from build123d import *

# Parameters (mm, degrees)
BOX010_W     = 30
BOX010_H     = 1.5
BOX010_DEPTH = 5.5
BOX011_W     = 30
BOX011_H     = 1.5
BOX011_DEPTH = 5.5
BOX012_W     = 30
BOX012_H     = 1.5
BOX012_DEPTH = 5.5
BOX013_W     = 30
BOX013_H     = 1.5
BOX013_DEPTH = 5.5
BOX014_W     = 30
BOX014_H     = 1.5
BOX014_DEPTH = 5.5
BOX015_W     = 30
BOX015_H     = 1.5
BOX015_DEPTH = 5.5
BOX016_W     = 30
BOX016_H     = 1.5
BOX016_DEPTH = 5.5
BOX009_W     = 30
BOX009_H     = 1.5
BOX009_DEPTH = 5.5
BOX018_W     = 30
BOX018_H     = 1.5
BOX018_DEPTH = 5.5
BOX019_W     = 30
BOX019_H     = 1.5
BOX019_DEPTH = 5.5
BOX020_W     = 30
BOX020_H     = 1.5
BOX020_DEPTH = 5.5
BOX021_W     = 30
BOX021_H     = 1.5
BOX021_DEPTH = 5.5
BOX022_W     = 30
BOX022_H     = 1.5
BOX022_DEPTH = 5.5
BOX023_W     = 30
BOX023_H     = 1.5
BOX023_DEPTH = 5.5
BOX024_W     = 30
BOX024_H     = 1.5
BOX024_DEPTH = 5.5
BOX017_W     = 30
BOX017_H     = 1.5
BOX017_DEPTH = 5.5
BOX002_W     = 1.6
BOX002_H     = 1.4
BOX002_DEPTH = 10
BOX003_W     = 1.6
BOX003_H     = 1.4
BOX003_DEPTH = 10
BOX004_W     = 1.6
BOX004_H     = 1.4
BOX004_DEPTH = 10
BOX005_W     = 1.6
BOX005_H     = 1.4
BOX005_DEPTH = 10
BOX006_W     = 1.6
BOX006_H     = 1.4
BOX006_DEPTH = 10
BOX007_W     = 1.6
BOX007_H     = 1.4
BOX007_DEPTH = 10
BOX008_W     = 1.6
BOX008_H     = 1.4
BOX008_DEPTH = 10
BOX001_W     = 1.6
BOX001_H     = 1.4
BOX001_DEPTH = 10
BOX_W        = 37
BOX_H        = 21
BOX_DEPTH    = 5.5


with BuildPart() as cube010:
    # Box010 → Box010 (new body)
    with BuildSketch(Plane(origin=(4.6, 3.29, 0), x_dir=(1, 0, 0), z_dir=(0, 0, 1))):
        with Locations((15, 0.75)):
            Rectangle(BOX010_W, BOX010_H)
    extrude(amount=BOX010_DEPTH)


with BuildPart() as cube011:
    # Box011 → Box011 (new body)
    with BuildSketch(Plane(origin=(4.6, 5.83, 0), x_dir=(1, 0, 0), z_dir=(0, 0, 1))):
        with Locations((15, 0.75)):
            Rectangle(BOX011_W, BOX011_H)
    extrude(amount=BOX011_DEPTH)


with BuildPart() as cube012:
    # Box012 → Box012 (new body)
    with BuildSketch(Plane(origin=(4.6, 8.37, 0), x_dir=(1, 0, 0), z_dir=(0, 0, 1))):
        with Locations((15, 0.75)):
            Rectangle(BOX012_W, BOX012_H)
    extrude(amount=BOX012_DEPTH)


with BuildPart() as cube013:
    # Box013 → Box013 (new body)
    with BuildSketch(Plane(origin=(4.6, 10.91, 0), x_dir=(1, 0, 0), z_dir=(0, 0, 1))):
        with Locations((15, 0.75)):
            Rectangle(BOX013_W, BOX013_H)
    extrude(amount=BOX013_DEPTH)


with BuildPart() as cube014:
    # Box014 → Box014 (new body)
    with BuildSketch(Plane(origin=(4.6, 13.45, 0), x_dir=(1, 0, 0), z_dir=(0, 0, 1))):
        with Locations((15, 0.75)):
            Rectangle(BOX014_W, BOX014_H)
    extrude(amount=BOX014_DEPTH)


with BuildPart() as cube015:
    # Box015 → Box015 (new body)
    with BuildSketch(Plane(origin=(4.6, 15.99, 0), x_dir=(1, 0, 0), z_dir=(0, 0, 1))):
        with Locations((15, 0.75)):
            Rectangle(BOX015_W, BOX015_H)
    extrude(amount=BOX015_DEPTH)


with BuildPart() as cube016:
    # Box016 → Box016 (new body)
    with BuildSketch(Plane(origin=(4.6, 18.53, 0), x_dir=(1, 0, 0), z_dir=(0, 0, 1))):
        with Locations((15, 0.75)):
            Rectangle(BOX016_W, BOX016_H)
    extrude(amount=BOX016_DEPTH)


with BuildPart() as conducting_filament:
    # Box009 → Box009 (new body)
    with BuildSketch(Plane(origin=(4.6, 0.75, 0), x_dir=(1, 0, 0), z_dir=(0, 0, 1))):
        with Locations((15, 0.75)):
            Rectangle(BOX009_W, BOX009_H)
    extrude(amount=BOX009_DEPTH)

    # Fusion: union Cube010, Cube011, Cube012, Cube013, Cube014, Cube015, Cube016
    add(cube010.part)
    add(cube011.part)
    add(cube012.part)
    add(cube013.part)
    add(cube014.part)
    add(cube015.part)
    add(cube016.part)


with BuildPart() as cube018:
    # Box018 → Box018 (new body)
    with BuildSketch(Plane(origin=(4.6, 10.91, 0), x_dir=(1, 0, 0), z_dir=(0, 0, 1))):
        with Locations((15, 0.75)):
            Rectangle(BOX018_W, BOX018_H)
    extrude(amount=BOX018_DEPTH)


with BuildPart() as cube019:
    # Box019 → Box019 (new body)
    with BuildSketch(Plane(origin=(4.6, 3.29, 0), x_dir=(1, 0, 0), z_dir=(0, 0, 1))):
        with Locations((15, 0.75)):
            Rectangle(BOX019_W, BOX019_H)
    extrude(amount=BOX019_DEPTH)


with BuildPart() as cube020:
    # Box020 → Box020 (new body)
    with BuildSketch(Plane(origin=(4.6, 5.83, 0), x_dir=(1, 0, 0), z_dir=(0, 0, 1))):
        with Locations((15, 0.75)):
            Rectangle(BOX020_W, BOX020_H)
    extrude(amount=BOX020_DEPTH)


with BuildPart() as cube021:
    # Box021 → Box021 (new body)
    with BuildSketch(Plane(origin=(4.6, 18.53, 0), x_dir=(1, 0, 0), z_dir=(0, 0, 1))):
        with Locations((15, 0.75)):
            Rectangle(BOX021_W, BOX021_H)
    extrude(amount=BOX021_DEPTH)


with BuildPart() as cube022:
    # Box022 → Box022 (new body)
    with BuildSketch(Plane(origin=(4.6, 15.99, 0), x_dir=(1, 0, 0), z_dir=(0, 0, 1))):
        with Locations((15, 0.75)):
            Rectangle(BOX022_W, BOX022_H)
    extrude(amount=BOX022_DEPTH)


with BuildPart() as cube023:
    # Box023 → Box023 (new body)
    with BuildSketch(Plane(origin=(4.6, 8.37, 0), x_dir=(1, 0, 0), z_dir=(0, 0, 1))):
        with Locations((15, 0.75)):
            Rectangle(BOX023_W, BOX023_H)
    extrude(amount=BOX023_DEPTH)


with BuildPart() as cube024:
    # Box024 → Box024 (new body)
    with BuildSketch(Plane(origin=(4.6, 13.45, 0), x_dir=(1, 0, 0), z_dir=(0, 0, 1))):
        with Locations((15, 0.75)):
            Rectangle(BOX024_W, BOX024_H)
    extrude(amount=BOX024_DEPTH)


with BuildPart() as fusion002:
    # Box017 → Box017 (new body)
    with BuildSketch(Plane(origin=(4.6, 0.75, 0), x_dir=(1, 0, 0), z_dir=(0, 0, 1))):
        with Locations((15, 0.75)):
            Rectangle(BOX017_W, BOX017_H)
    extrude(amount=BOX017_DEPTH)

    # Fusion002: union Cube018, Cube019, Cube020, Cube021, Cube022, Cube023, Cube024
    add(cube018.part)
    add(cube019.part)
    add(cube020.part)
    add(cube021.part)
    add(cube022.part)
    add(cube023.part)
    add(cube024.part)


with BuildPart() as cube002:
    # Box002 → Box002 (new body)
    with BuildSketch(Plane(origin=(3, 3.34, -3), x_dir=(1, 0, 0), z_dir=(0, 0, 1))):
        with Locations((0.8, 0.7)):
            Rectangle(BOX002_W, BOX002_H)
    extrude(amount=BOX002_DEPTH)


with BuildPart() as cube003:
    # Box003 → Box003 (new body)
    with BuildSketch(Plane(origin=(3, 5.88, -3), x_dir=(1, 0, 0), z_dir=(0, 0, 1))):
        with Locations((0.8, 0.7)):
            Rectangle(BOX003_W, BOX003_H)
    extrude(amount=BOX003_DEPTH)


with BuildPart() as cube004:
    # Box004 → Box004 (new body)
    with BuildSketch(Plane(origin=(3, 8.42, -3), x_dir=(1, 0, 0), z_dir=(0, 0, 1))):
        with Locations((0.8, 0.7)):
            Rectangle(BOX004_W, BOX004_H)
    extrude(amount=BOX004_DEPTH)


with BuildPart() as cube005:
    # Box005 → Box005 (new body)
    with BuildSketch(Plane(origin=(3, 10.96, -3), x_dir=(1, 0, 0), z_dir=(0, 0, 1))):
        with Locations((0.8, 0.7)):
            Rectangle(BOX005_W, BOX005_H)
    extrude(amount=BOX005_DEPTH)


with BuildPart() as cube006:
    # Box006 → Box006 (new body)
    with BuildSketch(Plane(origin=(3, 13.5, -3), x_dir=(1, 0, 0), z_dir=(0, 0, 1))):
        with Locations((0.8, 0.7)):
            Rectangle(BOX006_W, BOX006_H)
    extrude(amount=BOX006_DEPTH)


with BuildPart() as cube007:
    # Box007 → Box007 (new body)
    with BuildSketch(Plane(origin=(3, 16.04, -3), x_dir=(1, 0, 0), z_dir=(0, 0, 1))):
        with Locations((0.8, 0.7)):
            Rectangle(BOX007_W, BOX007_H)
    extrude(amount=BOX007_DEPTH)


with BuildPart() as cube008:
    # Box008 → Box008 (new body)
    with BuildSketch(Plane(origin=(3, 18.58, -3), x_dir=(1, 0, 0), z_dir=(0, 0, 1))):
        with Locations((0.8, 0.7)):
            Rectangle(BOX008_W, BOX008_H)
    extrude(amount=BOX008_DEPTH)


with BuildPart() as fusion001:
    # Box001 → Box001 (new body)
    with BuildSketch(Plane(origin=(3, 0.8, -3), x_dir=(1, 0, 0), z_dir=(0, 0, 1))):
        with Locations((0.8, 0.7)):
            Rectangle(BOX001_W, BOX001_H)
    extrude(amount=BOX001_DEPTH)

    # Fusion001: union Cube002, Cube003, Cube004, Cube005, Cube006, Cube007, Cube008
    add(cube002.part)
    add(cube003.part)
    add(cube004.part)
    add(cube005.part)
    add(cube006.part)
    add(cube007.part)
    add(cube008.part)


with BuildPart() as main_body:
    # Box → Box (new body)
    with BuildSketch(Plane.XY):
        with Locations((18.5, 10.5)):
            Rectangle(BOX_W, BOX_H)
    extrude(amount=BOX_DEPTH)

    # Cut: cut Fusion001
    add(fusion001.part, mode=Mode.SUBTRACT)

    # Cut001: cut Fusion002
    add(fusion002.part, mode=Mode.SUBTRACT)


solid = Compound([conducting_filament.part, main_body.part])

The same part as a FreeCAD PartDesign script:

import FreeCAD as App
import Part
import Sketcher

V = App.Vector
Q = App.Units.Quantity

doc = App.newDocument("Part")
body = doc.addObject("PartDesign::Body", "Body")

# Sketch on XY plane
sketch1 = doc.addObject("Sketcher::SketchObject", "Sketch")
body.addObject(sketch1)
sketch1.AttachmentSupport = (doc.XY_Plane, [""])
sketch1.MapMode = "FlatFace"
sketch1.addGeometry(Part.LineSegment(V(4.6, 4.79, 0), V(4.6, 3.29, 0)), False)
sketch1.addGeometry(Part.LineSegment(V(4.6, 3.29, 0), V(34.6, 3.29, 0)), False)
sketch1.addGeometry(Part.LineSegment(V(34.6, 3.29, 0), V(34.6, 4.79, 0)), False)
sketch1.addGeometry(Part.LineSegment(V(34.6, 4.79, 0), V(4.6, 4.79, 0)), False)
sketch1.addConstraint(Sketcher.Constraint("Coincident", 0, 2, 1, 1))
sketch1.addConstraint(Sketcher.Constraint("Coincident", 1, 2, 2, 1))
sketch1.addConstraint(Sketcher.Constraint("Coincident", 2, 2, 3, 1))
sketch1.addConstraint(Sketcher.Constraint("Coincident", 3, 2, 0, 1))
sketch1.addConstraint(Sketcher.Constraint("Vertical", 0))
sketch1.addConstraint(Sketcher.Constraint("Horizontal", 1))
sketch1.addConstraint(Sketcher.Constraint("Vertical", 2))
sketch1.addConstraint(Sketcher.Constraint("Horizontal", 3))
sketch1.addConstraint(Sketcher.Constraint("DistanceX", 1, 1, 1, 2, Q("30 mm")))
sketch1.addConstraint(Sketcher.Constraint("DistanceY", 0, 2, 0, 1, Q("1.5 mm")))
sketch1.addConstraint(Sketcher.Constraint("DistanceX", -1, 1, 0, 2, Q("4.6 mm")))
sketch1.addConstraint(Sketcher.Constraint("DistanceY", -1, 1, 0, 2, Q("3.29 mm")))
pad1 = doc.addObject("PartDesign::Pad", "Pad")
body.addObject(pad1)
pad1.Profile = sketch1
pad1.Length = 5.5
body2 = doc.addObject("PartDesign::Body", "Body001")

# Sketch on XY plane
sketch2 = doc.addObject("Sketcher::SketchObject", "Sketch001")
body2.addObject(sketch2)
sketch2.AttachmentSupport = (doc.getObject("XY_Plane001"), [""])
sketch2.MapMode = "FlatFace"
sketch2.addGeometry(Part.LineSegment(V(4.6, 7.33, 0), V(4.6, 5.83, 0)), False)
sketch2.addGeometry(Part.LineSegment(V(4.6, 5.83, 0), V(34.6, 5.83, 0)), False)
sketch2.addGeometry(Part.LineSegment(V(34.6, 5.83, 0), V(34.6, 7.33, 0)), False)
sketch2.addGeometry(Part.LineSegment(V(34.6, 7.33, 0), V(4.6, 7.33, 0)), False)
sketch2.addConstraint(Sketcher.Constraint("Coincident", 0, 2, 1, 1))
sketch2.addConstraint(Sketcher.Constraint("Coincident", 1, 2, 2, 1))
sketch2.addConstraint(Sketcher.Constraint("Coincident", 2, 2, 3, 1))
sketch2.addConstraint(Sketcher.Constraint("Coincident", 3, 2, 0, 1))
sketch2.addConstraint(Sketcher.Constraint("Vertical", 0))
sketch2.addConstraint(Sketcher.Constraint("Horizontal", 1))
sketch2.addConstraint(Sketcher.Constraint("Vertical", 2))
sketch2.addConstraint(Sketcher.Constraint("Horizontal", 3))
sketch2.addConstraint(Sketcher.Constraint("DistanceX", 1, 1, 1, 2, Q("30 mm")))
sketch2.addConstraint(Sketcher.Constraint("DistanceY", 0, 2, 0, 1, Q("1.5 mm")))
sketch2.addConstraint(Sketcher.Constraint("DistanceX", -1, 1, 0, 2, Q("4.6 mm")))
sketch2.addConstraint(Sketcher.Constraint("DistanceY", -1, 1, 0, 2, Q("5.83 mm")))
pad2 = doc.addObject("PartDesign::Pad", "Pad001")
body2.addObject(pad2)
pad2.Profile = sketch2
pad2.Length = 5.5
body3 = doc.addObject("PartDesign::Body", "Body002")

# Sketch on XY plane
sketch3 = doc.addObject("Sketcher::SketchObject", "Sketch002")
body3.addObject(sketch3)
sketch3.AttachmentSupport = (doc.getObject("XY_Plane002"), [""])
sketch3.MapMode = "FlatFace"
sketch3.addGeometry(Part.LineSegment(V(4.6, 9.87, 0), V(4.6, 8.37, 0)), False)
sketch3.addGeometry(Part.LineSegment(V(4.6, 8.37, 0), V(34.6, 8.37, 0)), False)
sketch3.addGeometry(Part.LineSegment(V(34.6, 8.37, 0), V(34.6, 9.87, 0)), False)
sketch3.addGeometry(Part.LineSegment(V(34.6, 9.87, 0), V(4.6, 9.87, 0)), False)
sketch3.addConstraint(Sketcher.Constraint("Coincident", 0, 2, 1, 1))
sketch3.addConstraint(Sketcher.Constraint("Coincident", 1, 2, 2, 1))
sketch3.addConstraint(Sketcher.Constraint("Coincident", 2, 2, 3, 1))
sketch3.addConstraint(Sketcher.Constraint("Coincident", 3, 2, 0, 1))
sketch3.addConstraint(Sketcher.Constraint("Vertical", 0))
sketch3.addConstraint(Sketcher.Constraint("Horizontal", 1))
sketch3.addConstraint(Sketcher.Constraint("Vertical", 2))
sketch3.addConstraint(Sketcher.Constraint("Horizontal", 3))
sketch3.addConstraint(Sketcher.Constraint("DistanceX", 1, 1, 1, 2, Q("30 mm")))
sketch3.addConstraint(Sketcher.Constraint("DistanceY", 0, 2, 0, 1, Q("1.5 mm")))
sketch3.addConstraint(Sketcher.Constraint("DistanceX", -1, 1, 0, 2, Q("4.6 mm")))
sketch3.addConstraint(Sketcher.Constraint("DistanceY", -1, 1, 0, 2, Q("8.37 mm")))
pad3 = doc.addObject("PartDesign::Pad", "Pad002")
body3.addObject(pad3)
pad3.Profile = sketch3
pad3.Length = 5.5
body4 = doc.addObject("PartDesign::Body", "Body003")

# Sketch on XY plane
sketch4 = doc.addObject("Sketcher::SketchObject", "Sketch003")
body4.addObject(sketch4)
sketch4.AttachmentSupport = (doc.getObject("XY_Plane003"), [""])
sketch4.MapMode = "FlatFace"
sketch4.addGeometry(Part.LineSegment(V(4.6, 12.41, 0), V(4.6, 10.91, 0)), False)
sketch4.addGeometry(Part.LineSegment(V(4.6, 10.91, 0), V(34.6, 10.91, 0)), False)
sketch4.addGeometry(Part.LineSegment(V(34.6, 10.91, 0), V(34.6, 12.41, 0)), False)
sketch4.addGeometry(Part.LineSegment(V(34.6, 12.41, 0), V(4.6, 12.41, 0)), False)
sketch4.addConstraint(Sketcher.Constraint("Coincident", 0, 2, 1, 1))
sketch4.addConstraint(Sketcher.Constraint("Coincident", 1, 2, 2, 1))
sketch4.addConstraint(Sketcher.Constraint("Coincident", 2, 2, 3, 1))
sketch4.addConstraint(Sketcher.Constraint("Coincident", 3, 2, 0, 1))
sketch4.addConstraint(Sketcher.Constraint("Vertical", 0))
sketch4.addConstraint(Sketcher.Constraint("Horizontal", 1))
sketch4.addConstraint(Sketcher.Constraint("Vertical", 2))
sketch4.addConstraint(Sketcher.Constraint("Horizontal", 3))
sketch4.addConstraint(Sketcher.Constraint("DistanceX", 1, 1, 1, 2, Q("30 mm")))
sketch4.addConstraint(Sketcher.Constraint("DistanceY", 0, 2, 0, 1, Q("1.5 mm")))
sketch4.addConstraint(Sketcher.Constraint("DistanceX", -1, 1, 0, 2, Q("4.6 mm")))
sketch4.addConstraint(Sketcher.Constraint("DistanceY", -1, 1, 0, 2, Q("10.91 mm")))
pad4 = doc.addObject("PartDesign::Pad", "Pad003")
body4.addObject(pad4)
pad4.Profile = sketch4
pad4.Length = 5.5
body5 = doc.addObject("PartDesign::Body", "Body004")

# Sketch on XY plane
sketch5 = doc.addObject("Sketcher::SketchObject", "Sketch004")
body5.addObject(sketch5)
sketch5.AttachmentSupport = (doc.getObject("XY_Plane004"), [""])
sketch5.MapMode = "FlatFace"
sketch5.addGeometry(Part.LineSegment(V(4.6, 14.95, 0), V(4.6, 13.45, 0)), False)
sketch5.addGeometry(Part.LineSegment(V(4.6, 13.45, 0), V(34.6, 13.45, 0)), False)
sketch5.addGeometry(Part.LineSegment(V(34.6, 13.45, 0), V(34.6, 14.95, 0)), False)
sketch5.addGeometry(Part.LineSegment(V(34.6, 14.95, 0), V(4.6, 14.95, 0)), False)
sketch5.addConstraint(Sketcher.Constraint("Coincident", 0, 2, 1, 1))
sketch5.addConstraint(Sketcher.Constraint("Coincident", 1, 2, 2, 1))
sketch5.addConstraint(Sketcher.Constraint("Coincident", 2, 2, 3, 1))
sketch5.addConstraint(Sketcher.Constraint("Coincident", 3, 2, 0, 1))
sketch5.addConstraint(Sketcher.Constraint("Vertical", 0))
sketch5.addConstraint(Sketcher.Constraint("Horizontal", 1))
sketch5.addConstraint(Sketcher.Constraint("Vertical", 2))
sketch5.addConstraint(Sketcher.Constraint("Horizontal", 3))
sketch5.addConstraint(Sketcher.Constraint("DistanceX", 1, 1, 1, 2, Q("30 mm")))
sketch5.addConstraint(Sketcher.Constraint("DistanceY", 0, 2, 0, 1, Q("1.5 mm")))
sketch5.addConstraint(Sketcher.Constraint("DistanceX", -1, 1, 0, 2, Q("4.6 mm")))
sketch5.addConstraint(Sketcher.Constraint("DistanceY", -1, 1, 0, 2, Q("13.45 mm")))
pad5 = doc.addObject("PartDesign::Pad", "Pad004")
body5.addObject(pad5)
pad5.Profile = sketch5
pad5.Length = 5.5
body6 = doc.addObject("PartDesign::Body", "Body005")

# Sketch on XY plane
sketch6 = doc.addObject("Sketcher::SketchObject", "Sketch005")
body6.addObject(sketch6)
sketch6.AttachmentSupport = (doc.getObject("XY_Plane005"), [""])
sketch6.MapMode = "FlatFace"
sketch6.addGeometry(Part.LineSegment(V(4.6, 17.49, 0), V(4.6, 15.99, 0)), False)
sketch6.addGeometry(Part.LineSegment(V(4.6, 15.99, 0), V(34.6, 15.99, 0)), False)
sketch6.addGeometry(Part.LineSegment(V(34.6, 15.99, 0), V(34.6, 17.49, 0)), False)
sketch6.addGeometry(Part.LineSegment(V(34.6, 17.49, 0), V(4.6, 17.49, 0)), False)
sketch6.addConstraint(Sketcher.Constraint("Coincident", 0, 2, 1, 1))
sketch6.addConstraint(Sketcher.Constraint("Coincident", 1, 2, 2, 1))
sketch6.addConstraint(Sketcher.Constraint("Coincident", 2, 2, 3, 1))
sketch6.addConstraint(Sketcher.Constraint("Coincident", 3, 2, 0, 1))
sketch6.addConstraint(Sketcher.Constraint("Vertical", 0))
sketch6.addConstraint(Sketcher.Constraint("Horizontal", 1))
sketch6.addConstraint(Sketcher.Constraint("Vertical", 2))
sketch6.addConstraint(Sketcher.Constraint("Horizontal", 3))
sketch6.addConstraint(Sketcher.Constraint("DistanceX", 1, 1, 1, 2, Q("30 mm")))
sketch6.addConstraint(Sketcher.Constraint("DistanceY", 0, 2, 0, 1, Q("1.5 mm")))
sketch6.addConstraint(Sketcher.Constraint("DistanceX", -1, 1, 0, 2, Q("4.6 mm")))
sketch6.addConstraint(Sketcher.Constraint("DistanceY", -1, 1, 0, 2, Q("15.99 mm")))
pad6 = doc.addObject("PartDesign::Pad", "Pad005")
body6.addObject(pad6)
pad6.Profile = sketch6
pad6.Length = 5.5
body7 = doc.addObject("PartDesign::Body", "Body006")

# Sketch on XY plane
sketch7 = doc.addObject("Sketcher::SketchObject", "Sketch006")
body7.addObject(sketch7)
sketch7.AttachmentSupport = (doc.getObject("XY_Plane006"), [""])
sketch7.MapMode = "FlatFace"
sketch7.addGeometry(Part.LineSegment(V(4.6, 20.03, 0), V(4.6, 18.53, 0)), False)
sketch7.addGeometry(Part.LineSegment(V(4.6, 18.53, 0), V(34.6, 18.53, 0)), False)
sketch7.addGeometry(Part.LineSegment(V(34.6, 18.53, 0), V(34.6, 20.03, 0)), False)
sketch7.addGeometry(Part.LineSegment(V(34.6, 20.03, 0), V(4.6, 20.03, 0)), False)
sketch7.addConstraint(Sketcher.Constraint("Coincident", 0, 2, 1, 1))
sketch7.addConstraint(Sketcher.Constraint("Coincident", 1, 2, 2, 1))
sketch7.addConstraint(Sketcher.Constraint("Coincident", 2, 2, 3, 1))
sketch7.addConstraint(Sketcher.Constraint("Coincident", 3, 2, 0, 1))
sketch7.addConstraint(Sketcher.Constraint("Vertical", 0))
sketch7.addConstraint(Sketcher.Constraint("Horizontal", 1))
sketch7.addConstraint(Sketcher.Constraint("Vertical", 2))
sketch7.addConstraint(Sketcher.Constraint("Horizontal", 3))
sketch7.addConstraint(Sketcher.Constraint("DistanceX", 1, 1, 1, 2, Q("30 mm")))
sketch7.addConstraint(Sketcher.Constraint("DistanceY", 0, 2, 0, 1, Q("1.5 mm")))
sketch7.addConstraint(Sketcher.Constraint("DistanceX", -1, 1, 0, 2, Q("4.6 mm")))
sketch7.addConstraint(Sketcher.Constraint("DistanceY", -1, 1, 0, 2, Q("18.53 mm")))
pad7 = doc.addObject("PartDesign::Pad", "Pad006")
body7.addObject(pad7)
pad7.Profile = sketch7
pad7.Length = 5.5
body8 = doc.addObject("PartDesign::Body", "Body007")
body8.AllowCompound = True

# Sketch on XY plane
sketch8 = doc.addObject("Sketcher::SketchObject", "Sketch007")
body8.addObject(sketch8)
sketch8.AttachmentSupport = (doc.getObject("XY_Plane007"), [""])
sketch8.MapMode = "FlatFace"
sketch8.addGeometry(Part.LineSegment(V(4.6, 2.25, 0), V(4.6, 0.75, 0)), False)
sketch8.addGeometry(Part.LineSegment(V(4.6, 0.75, 0), V(34.6, 0.75, 0)), False)
sketch8.addGeometry(Part.LineSegment(V(34.6, 0.75, 0), V(34.6, 2.25, 0)), False)
sketch8.addGeometry(Part.LineSegment(V(34.6, 2.25, 0), V(4.6, 2.25, 0)), False)
sketch8.addConstraint(Sketcher.Constraint("Coincident", 0, 2, 1, 1))
sketch8.addConstraint(Sketcher.Constraint("Coincident", 1, 2, 2, 1))
sketch8.addConstraint(Sketcher.Constraint("Coincident", 2, 2, 3, 1))
sketch8.addConstraint(Sketcher.Constraint("Coincident", 3, 2, 0, 1))
sketch8.addConstraint(Sketcher.Constraint("Vertical", 0))
sketch8.addConstraint(Sketcher.Constraint("Horizontal", 1))
sketch8.addConstraint(Sketcher.Constraint("Vertical", 2))
sketch8.addConstraint(Sketcher.Constraint("Horizontal", 3))
sketch8.addConstraint(Sketcher.Constraint("DistanceX", 1, 1, 1, 2, Q("30 mm")))
sketch8.addConstraint(Sketcher.Constraint("DistanceY", 0, 2, 0, 1, Q("1.5 mm")))
sketch8.addConstraint(Sketcher.Constraint("DistanceX", -1, 1, 0, 2, Q("4.6 mm")))
sketch8.addConstraint(Sketcher.Constraint("DistanceY", -1, 1, 0, 2, Q("0.75 mm")))
pad8 = doc.addObject("PartDesign::Pad", "Pad007")
body8.addObject(pad8)
pad8.Profile = sketch8
pad8.Length = 5.5
doc.recompute()

boolean = doc.addObject("PartDesign::Boolean", "Boolean")
body8.addObject(boolean)
boolean.Type = "Fuse"
boolean.addObjects([body])
doc.recompute()

boolean2 = doc.addObject("PartDesign::Boolean", "Boolean001")
body8.addObject(boolean2)
boolean2.Type = "Fuse"
boolean2.addObjects([body2])
doc.recompute()

boolean3 = doc.addObject("PartDesign::Boolean", "Boolean002")
body8.addObject(boolean3)
boolean3.Type = "Fuse"
boolean3.addObjects([body3])
doc.recompute()

boolean4 = doc.addObject("PartDesign::Boolean", "Boolean003")
body8.addObject(boolean4)
boolean4.Type = "Fuse"
boolean4.addObjects([body4])
doc.recompute()

boolean5 = doc.addObject("PartDesign::Boolean", "Boolean004")
body8.addObject(boolean5)
boolean5.Type = "Fuse"
boolean5.addObjects([body5])
doc.recompute()

boolean6 = doc.addObject("PartDesign::Boolean", "Boolean005")
body8.addObject(boolean6)
boolean6.Type = "Fuse"
boolean6.addObjects([body6])
doc.recompute()

boolean7 = doc.addObject("PartDesign::Boolean", "Boolean006")
body8.addObject(boolean7)
boolean7.Type = "Fuse"
boolean7.addObjects([body7])
body9 = doc.addObject("PartDesign::Body", "Body008")

# Sketch on XY plane
sketch9 = doc.addObject("Sketcher::SketchObject", "Sketch008")
body9.addObject(sketch9)
sketch9.AttachmentSupport = (doc.getObject("XY_Plane008"), [""])
sketch9.MapMode = "FlatFace"
sketch9.addGeometry(Part.LineSegment(V(4.6, 12.41, 0), V(4.6, 10.91, 0)), False)
sketch9.addGeometry(Part.LineSegment(V(4.6, 10.91, 0), V(34.6, 10.91, 0)), False)
sketch9.addGeometry(Part.LineSegment(V(34.6, 10.91, 0), V(34.6, 12.41, 0)), False)
sketch9.addGeometry(Part.LineSegment(V(34.6, 12.41, 0), V(4.6, 12.41, 0)), False)
sketch9.addConstraint(Sketcher.Constraint("Coincident", 0, 2, 1, 1))
sketch9.addConstraint(Sketcher.Constraint("Coincident", 1, 2, 2, 1))
sketch9.addConstraint(Sketcher.Constraint("Coincident", 2, 2, 3, 1))
sketch9.addConstraint(Sketcher.Constraint("Coincident", 3, 2, 0, 1))
sketch9.addConstraint(Sketcher.Constraint("Vertical", 0))
sketch9.addConstraint(Sketcher.Constraint("Horizontal", 1))
sketch9.addConstraint(Sketcher.Constraint("Vertical", 2))
sketch9.addConstraint(Sketcher.Constraint("Horizontal", 3))
sketch9.addConstraint(Sketcher.Constraint("DistanceX", 1, 1, 1, 2, Q("30 mm")))
sketch9.addConstraint(Sketcher.Constraint("DistanceY", 0, 2, 0, 1, Q("1.5 mm")))
sketch9.addConstraint(Sketcher.Constraint("DistanceX", -1, 1, 0, 2, Q("4.6 mm")))
sketch9.addConstraint(Sketcher.Constraint("DistanceY", -1, 1, 0, 2, Q("10.91 mm")))
pad9 = doc.addObject("PartDesign::Pad", "Pad008")
body9.addObject(pad9)
pad9.Profile = sketch9
pad9.Length = 5.5
body10 = doc.addObject("PartDesign::Body", "Body009")

# Sketch on XY plane
sketch10 = doc.addObject("Sketcher::SketchObject", "Sketch009")
body10.addObject(sketch10)
sketch10.AttachmentSupport = (doc.getObject("XY_Plane009"), [""])
sketch10.MapMode = "FlatFace"
sketch10.addGeometry(Part.LineSegment(V(4.6, 4.79, 0), V(4.6, 3.29, 0)), False)
sketch10.addGeometry(Part.LineSegment(V(4.6, 3.29, 0), V(34.6, 3.29, 0)), False)
sketch10.addGeometry(Part.LineSegment(V(34.6, 3.29, 0), V(34.6, 4.79, 0)), False)
sketch10.addGeometry(Part.LineSegment(V(34.6, 4.79, 0), V(4.6, 4.79, 0)), False)
sketch10.addConstraint(Sketcher.Constraint("Coincident", 0, 2, 1, 1))
sketch10.addConstraint(Sketcher.Constraint("Coincident", 1, 2, 2, 1))
sketch10.addConstraint(Sketcher.Constraint("Coincident", 2, 2, 3, 1))
sketch10.addConstraint(Sketcher.Constraint("Coincident", 3, 2, 0, 1))
sketch10.addConstraint(Sketcher.Constraint("Vertical", 0))
sketch10.addConstraint(Sketcher.Constraint("Horizontal", 1))
sketch10.addConstraint(Sketcher.Constraint("Vertical", 2))
sketch10.addConstraint(Sketcher.Constraint("Horizontal", 3))
sketch10.addConstraint(Sketcher.Constraint("DistanceX", 1, 1, 1, 2, Q("30 mm")))
sketch10.addConstraint(Sketcher.Constraint("DistanceY", 0, 2, 0, 1, Q("1.5 mm")))
sketch10.addConstraint(Sketcher.Constraint("DistanceX", -1, 1, 0, 2, Q("4.6 mm")))
sketch10.addConstraint(Sketcher.Constraint("DistanceY", -1, 1, 0, 2, Q("3.29 mm")))
pad10 = doc.addObject("PartDesign::Pad", "Pad009")
body10.addObject(pad10)
pad10.Profile = sketch10
pad10.Length = 5.5
body11 = doc.addObject("PartDesign::Body", "Body010")

# Sketch on XY plane
sketch11 = doc.addObject("Sketcher::SketchObject", "Sketch010")
body11.addObject(sketch11)
sketch11.AttachmentSupport = (doc.getObject("XY_Plane010"), [""])
sketch11.MapMode = "FlatFace"
sketch11.addGeometry(Part.LineSegment(V(4.6, 7.33, 0), V(4.6, 5.83, 0)), False)
sketch11.addGeometry(Part.LineSegment(V(4.6, 5.83, 0), V(34.6, 5.83, 0)), False)
sketch11.addGeometry(Part.LineSegment(V(34.6, 5.83, 0), V(34.6, 7.33, 0)), False)
sketch11.addGeometry(Part.LineSegment(V(34.6, 7.33, 0), V(4.6, 7.33, 0)), False)
sketch11.addConstraint(Sketcher.Constraint("Coincident", 0, 2, 1, 1))
sketch11.addConstraint(Sketcher.Constraint("Coincident", 1, 2, 2, 1))
sketch11.addConstraint(Sketcher.Constraint("Coincident", 2, 2, 3, 1))
sketch11.addConstraint(Sketcher.Constraint("Coincident", 3, 2, 0, 1))
sketch11.addConstraint(Sketcher.Constraint("Vertical", 0))
sketch11.addConstraint(Sketcher.Constraint("Horizontal", 1))
sketch11.addConstraint(Sketcher.Constraint("Vertical", 2))
sketch11.addConstraint(Sketcher.Constraint("Horizontal", 3))
sketch11.addConstraint(Sketcher.Constraint("DistanceX", 1, 1, 1, 2, Q("30 mm")))
sketch11.addConstraint(Sketcher.Constraint("DistanceY", 0, 2, 0, 1, Q("1.5 mm")))
sketch11.addConstraint(Sketcher.Constraint("DistanceX", -1, 1, 0, 2, Q("4.6 mm")))
sketch11.addConstraint(Sketcher.Constraint("DistanceY", -1, 1, 0, 2, Q("5.83 mm")))
pad11 = doc.addObject("PartDesign::Pad", "Pad010")
body11.addObject(pad11)
pad11.Profile = sketch11
pad11.Length = 5.5
body12 = doc.addObject("PartDesign::Body", "Body011")

# Sketch on XY plane
sketch12 = doc.addObject("Sketcher::SketchObject", "Sketch011")
body12.addObject(sketch12)
sketch12.AttachmentSupport = (doc.getObject("XY_Plane011"), [""])
sketch12.MapMode = "FlatFace"
sketch12.addGeometry(Part.LineSegment(V(4.6, 20.03, 0), V(4.6, 18.53, 0)), False)
sketch12.addGeometry(Part.LineSegment(V(4.6, 18.53, 0), V(34.6, 18.53, 0)), False)
sketch12.addGeometry(Part.LineSegment(V(34.6, 18.53, 0), V(34.6, 20.03, 0)), False)
sketch12.addGeometry(Part.LineSegment(V(34.6, 20.03, 0), V(4.6, 20.03, 0)), False)
sketch12.addConstraint(Sketcher.Constraint("Coincident", 0, 2, 1, 1))
sketch12.addConstraint(Sketcher.Constraint("Coincident", 1, 2, 2, 1))
sketch12.addConstraint(Sketcher.Constraint("Coincident", 2, 2, 3, 1))
sketch12.addConstraint(Sketcher.Constraint("Coincident", 3, 2, 0, 1))
sketch12.addConstraint(Sketcher.Constraint("Vertical", 0))
sketch12.addConstraint(Sketcher.Constraint("Horizontal", 1))
sketch12.addConstraint(Sketcher.Constraint("Vertical", 2))
sketch12.addConstraint(Sketcher.Constraint("Horizontal", 3))
sketch12.addConstraint(Sketcher.Constraint("DistanceX", 1, 1, 1, 2, Q("30 mm")))
sketch12.addConstraint(Sketcher.Constraint("DistanceY", 0, 2, 0, 1, Q("1.5 mm")))
sketch12.addConstraint(Sketcher.Constraint("DistanceX", -1, 1, 0, 2, Q("4.6 mm")))
sketch12.addConstraint(Sketcher.Constraint("DistanceY", -1, 1, 0, 2, Q("18.53 mm")))
pad12 = doc.addObject("PartDesign::Pad", "Pad011")
body12.addObject(pad12)
pad12.Profile = sketch12
pad12.Length = 5.5
body13 = doc.addObject("PartDesign::Body", "Body012")

# Sketch on XY plane
sketch13 = doc.addObject("Sketcher::SketchObject", "Sketch012")
body13.addObject(sketch13)
sketch13.AttachmentSupport = (doc.getObject("XY_Plane012"), [""])
sketch13.MapMode = "FlatFace"
sketch13.addGeometry(Part.LineSegment(V(4.6, 17.49, 0), V(4.6, 15.99, 0)), False)
sketch13.addGeometry(Part.LineSegment(V(4.6, 15.99, 0), V(34.6, 15.99, 0)), False)
sketch13.addGeometry(Part.LineSegment(V(34.6, 15.99, 0), V(34.6, 17.49, 0)), False)
sketch13.addGeometry(Part.LineSegment(V(34.6, 17.49, 0), V(4.6, 17.49, 0)), False)
sketch13.addConstraint(Sketcher.Constraint("Coincident", 0, 2, 1, 1))
sketch13.addConstraint(Sketcher.Constraint("Coincident", 1, 2, 2, 1))
sketch13.addConstraint(Sketcher.Constraint("Coincident", 2, 2, 3, 1))
sketch13.addConstraint(Sketcher.Constraint("Coincident", 3, 2, 0, 1))
sketch13.addConstraint(Sketcher.Constraint("Vertical", 0))
sketch13.addConstraint(Sketcher.Constraint("Horizontal", 1))
sketch13.addConstraint(Sketcher.Constraint("Vertical", 2))
sketch13.addConstraint(Sketcher.Constraint("Horizontal", 3))
sketch13.addConstraint(Sketcher.Constraint("DistanceX", 1, 1, 1, 2, Q("30 mm")))
sketch13.addConstraint(Sketcher.Constraint("DistanceY", 0, 2, 0, 1, Q("1.5 mm")))
sketch13.addConstraint(Sketcher.Constraint("DistanceX", -1, 1, 0, 2, Q("4.6 mm")))
sketch13.addConstraint(Sketcher.Constraint("DistanceY", -1, 1, 0, 2, Q("15.99 mm")))
pad13 = doc.addObject("PartDesign::Pad", "Pad012")
body13.addObject(pad13)
pad13.Profile = sketch13
pad13.Length = 5.5
body14 = doc.addObject("PartDesign::Body", "Body013")

# Sketch on XY plane
sketch14 = doc.addObject("Sketcher::SketchObject", "Sketch013")
body14.addObject(sketch14)
sketch14.AttachmentSupport = (doc.getObject("XY_Plane013"), [""])
sketch14.MapMode = "FlatFace"
sketch14.addGeometry(Part.LineSegment(V(4.6, 9.87, 0), V(4.6, 8.37, 0)), False)
sketch14.addGeometry(Part.LineSegment(V(4.6, 8.37, 0), V(34.6, 8.37, 0)), False)
sketch14.addGeometry(Part.LineSegment(V(34.6, 8.37, 0), V(34.6, 9.87, 0)), False)
sketch14.addGeometry(Part.LineSegment(V(34.6, 9.87, 0), V(4.6, 9.87, 0)), False)
sketch14.addConstraint(Sketcher.Constraint("Coincident", 0, 2, 1, 1))
sketch14.addConstraint(Sketcher.Constraint("Coincident", 1, 2, 2, 1))
sketch14.addConstraint(Sketcher.Constraint("Coincident", 2, 2, 3, 1))
sketch14.addConstraint(Sketcher.Constraint("Coincident", 3, 2, 0, 1))
sketch14.addConstraint(Sketcher.Constraint("Vertical", 0))
sketch14.addConstraint(Sketcher.Constraint("Horizontal", 1))
sketch14.addConstraint(Sketcher.Constraint("Vertical", 2))
sketch14.addConstraint(Sketcher.Constraint("Horizontal", 3))
sketch14.addConstraint(Sketcher.Constraint("DistanceX", 1, 1, 1, 2, Q("30 mm")))
sketch14.addConstraint(Sketcher.Constraint("DistanceY", 0, 2, 0, 1, Q("1.5 mm")))
sketch14.addConstraint(Sketcher.Constraint("DistanceX", -1, 1, 0, 2, Q("4.6 mm")))
sketch14.addConstraint(Sketcher.Constraint("DistanceY", -1, 1, 0, 2, Q("8.37 mm")))
pad14 = doc.addObject("PartDesign::Pad", "Pad013")
body14.addObject(pad14)
pad14.Profile = sketch14
pad14.Length = 5.5
body15 = doc.addObject("PartDesign::Body", "Body014")

# Sketch on XY plane
sketch15 = doc.addObject("Sketcher::SketchObject", "Sketch014")
body15.addObject(sketch15)
sketch15.AttachmentSupport = (doc.getObject("XY_Plane014"), [""])
sketch15.MapMode = "FlatFace"
sketch15.addGeometry(Part.LineSegment(V(4.6, 14.95, 0), V(4.6, 13.45, 0)), False)
sketch15.addGeometry(Part.LineSegment(V(4.6, 13.45, 0), V(34.6, 13.45, 0)), False)
sketch15.addGeometry(Part.LineSegment(V(34.6, 13.45, 0), V(34.6, 14.95, 0)), False)
sketch15.addGeometry(Part.LineSegment(V(34.6, 14.95, 0), V(4.6, 14.95, 0)), False)
sketch15.addConstraint(Sketcher.Constraint("Coincident", 0, 2, 1, 1))
sketch15.addConstraint(Sketcher.Constraint("Coincident", 1, 2, 2, 1))
sketch15.addConstraint(Sketcher.Constraint("Coincident", 2, 2, 3, 1))
sketch15.addConstraint(Sketcher.Constraint("Coincident", 3, 2, 0, 1))
sketch15.addConstraint(Sketcher.Constraint("Vertical", 0))
sketch15.addConstraint(Sketcher.Constraint("Horizontal", 1))
sketch15.addConstraint(Sketcher.Constraint("Vertical", 2))
sketch15.addConstraint(Sketcher.Constraint("Horizontal", 3))
sketch15.addConstraint(Sketcher.Constraint("DistanceX", 1, 1, 1, 2, Q("30 mm")))
sketch15.addConstraint(Sketcher.Constraint("DistanceY", 0, 2, 0, 1, Q("1.5 mm")))
sketch15.addConstraint(Sketcher.Constraint("DistanceX", -1, 1, 0, 2, Q("4.6 mm")))
sketch15.addConstraint(Sketcher.Constraint("DistanceY", -1, 1, 0, 2, Q("13.45 mm")))
pad15 = doc.addObject("PartDesign::Pad", "Pad014")
body15.addObject(pad15)
pad15.Profile = sketch15
pad15.Length = 5.5
body16 = doc.addObject("PartDesign::Body", "Body015")
body16.AllowCompound = True

# Sketch on XY plane
sketch16 = doc.addObject("Sketcher::SketchObject", "Sketch015")
body16.addObject(sketch16)
sketch16.AttachmentSupport = (doc.getObject("XY_Plane015"), [""])
sketch16.MapMode = "FlatFace"
sketch16.addGeometry(Part.LineSegment(V(4.6, 2.25, 0), V(4.6, 0.75, 0)), False)
sketch16.addGeometry(Part.LineSegment(V(4.6, 0.75, 0), V(34.6, 0.75, 0)), False)
sketch16.addGeometry(Part.LineSegment(V(34.6, 0.75, 0), V(34.6, 2.25, 0)), False)
sketch16.addGeometry(Part.LineSegment(V(34.6, 2.25, 0), V(4.6, 2.25, 0)), False)
sketch16.addConstraint(Sketcher.Constraint("Coincident", 0, 2, 1, 1))
sketch16.addConstraint(Sketcher.Constraint("Coincident", 1, 2, 2, 1))
sketch16.addConstraint(Sketcher.Constraint("Coincident", 2, 2, 3, 1))
sketch16.addConstraint(Sketcher.Constraint("Coincident", 3, 2, 0, 1))
sketch16.addConstraint(Sketcher.Constraint("Vertical", 0))
sketch16.addConstraint(Sketcher.Constraint("Horizontal", 1))
sketch16.addConstraint(Sketcher.Constraint("Vertical", 2))
sketch16.addConstraint(Sketcher.Constraint("Horizontal", 3))
sketch16.addConstraint(Sketcher.Constraint("DistanceX", 1, 1, 1, 2, Q("30 mm")))
sketch16.addConstraint(Sketcher.Constraint("DistanceY", 0, 2, 0, 1, Q("1.5 mm")))
sketch16.addConstraint(Sketcher.Constraint("DistanceX", -1, 1, 0, 2, Q("4.6 mm")))
sketch16.addConstraint(Sketcher.Constraint("DistanceY", -1, 1, 0, 2, Q("0.75 mm")))
pad16 = doc.addObject("PartDesign::Pad", "Pad015")
body16.addObject(pad16)
pad16.Profile = sketch16
pad16.Length = 5.5
doc.recompute()

boolean8 = doc.addObject("PartDesign::Boolean", "Boolean007")
body16.addObject(boolean8)
boolean8.Type = "Fuse"
boolean8.addObjects([body9])
doc.recompute()

boolean9 = doc.addObject("PartDesign::Boolean", "Boolean008")
body16.addObject(boolean9)
boolean9.Type = "Fuse"
boolean9.addObjects([body10])
doc.recompute()

boolean10 = doc.addObject("PartDesign::Boolean", "Boolean009")
body16.addObject(boolean10)
boolean10.Type = "Fuse"
boolean10.addObjects([body11])
doc.recompute()

boolean11 = doc.addObject("PartDesign::Boolean", "Boolean010")
body16.addObject(boolean11)
boolean11.Type = "Fuse"
boolean11.addObjects([body12])
doc.recompute()

boolean12 = doc.addObject("PartDesign::Boolean", "Boolean011")
body16.addObject(boolean12)
boolean12.Type = "Fuse"
boolean12.addObjects([body13])
doc.recompute()

boolean13 = doc.addObject("PartDesign::Boolean", "Boolean012")
body16.addObject(boolean13)
boolean13.Type = "Fuse"
boolean13.addObjects([body14])
doc.recompute()

boolean14 = doc.addObject("PartDesign::Boolean", "Boolean013")
body16.addObject(boolean14)
boolean14.Type = "Fuse"
boolean14.addObjects([body15])
body17 = doc.addObject("PartDesign::Body", "Body016")

# Sketch on XY plane
sketch17 = doc.addObject("Sketcher::SketchObject", "Sketch016")
body17.addObject(sketch17)
sketch17.AttachmentSupport = (doc.getObject("XY_Plane016"), [""])
sketch17.MapMode = "FlatFace"
sketch17.AttachmentOffset = App.Placement(V(0, 0, -3), App.Rotation())
sketch17.addGeometry(Part.LineSegment(V(3, 4.74, 0), V(3, 3.34, 0)), False)
sketch17.addGeometry(Part.LineSegment(V(3, 3.34, 0), V(4.6, 3.34, 0)), False)
sketch17.addGeometry(Part.LineSegment(V(4.6, 3.34, 0), V(4.6, 4.74, 0)), False)
sketch17.addGeometry(Part.LineSegment(V(4.6, 4.74, 0), V(3, 4.74, 0)), False)
sketch17.addConstraint(Sketcher.Constraint("Coincident", 0, 2, 1, 1))
sketch17.addConstraint(Sketcher.Constraint("Coincident", 1, 2, 2, 1))
sketch17.addConstraint(Sketcher.Constraint("Coincident", 2, 2, 3, 1))
sketch17.addConstraint(Sketcher.Constraint("Coincident", 3, 2, 0, 1))
sketch17.addConstraint(Sketcher.Constraint("Vertical", 0))
sketch17.addConstraint(Sketcher.Constraint("Horizontal", 1))
sketch17.addConstraint(Sketcher.Constraint("Vertical", 2))
sketch17.addConstraint(Sketcher.Constraint("Horizontal", 3))
sketch17.addConstraint(Sketcher.Constraint("DistanceX", 1, 1, 1, 2, Q("1.6 mm")))
sketch17.addConstraint(Sketcher.Constraint("DistanceY", 0, 2, 0, 1, Q("1.4 mm")))
sketch17.addConstraint(Sketcher.Constraint("DistanceX", -1, 1, 0, 2, Q("3 mm")))
sketch17.addConstraint(Sketcher.Constraint("DistanceY", -1, 1, 0, 2, Q("3.34 mm")))
pad17 = doc.addObject("PartDesign::Pad", "Pad016")
body17.addObject(pad17)
pad17.Profile = sketch17
pad17.Length = 10
body18 = doc.addObject("PartDesign::Body", "Body017")

# Sketch on XY plane
sketch18 = doc.addObject("Sketcher::SketchObject", "Sketch017")
body18.addObject(sketch18)
sketch18.AttachmentSupport = (doc.getObject("XY_Plane017"), [""])
sketch18.MapMode = "FlatFace"
sketch18.AttachmentOffset = App.Placement(V(0, 0, -3), App.Rotation())
sketch18.addGeometry(Part.LineSegment(V(3, 7.28, 0), V(3, 5.88, 0)), False)
sketch18.addGeometry(Part.LineSegment(V(3, 5.88, 0), V(4.6, 5.88, 0)), False)
sketch18.addGeometry(Part.LineSegment(V(4.6, 5.88, 0), V(4.6, 7.28, 0)), False)
sketch18.addGeometry(Part.LineSegment(V(4.6, 7.28, 0), V(3, 7.28, 0)), False)
sketch18.addConstraint(Sketcher.Constraint("Coincident", 0, 2, 1, 1))
sketch18.addConstraint(Sketcher.Constraint("Coincident", 1, 2, 2, 1))
sketch18.addConstraint(Sketcher.Constraint("Coincident", 2, 2, 3, 1))
sketch18.addConstraint(Sketcher.Constraint("Coincident", 3, 2, 0, 1))
sketch18.addConstraint(Sketcher.Constraint("Vertical", 0))
sketch18.addConstraint(Sketcher.Constraint("Horizontal", 1))
sketch18.addConstraint(Sketcher.Constraint("Vertical", 2))
sketch18.addConstraint(Sketcher.Constraint("Horizontal", 3))
sketch18.addConstraint(Sketcher.Constraint("DistanceX", 1, 1, 1, 2, Q("1.6 mm")))
sketch18.addConstraint(Sketcher.Constraint("DistanceY", 0, 2, 0, 1, Q("1.4 mm")))
sketch18.addConstraint(Sketcher.Constraint("DistanceX", -1, 1, 0, 2, Q("3 mm")))
sketch18.addConstraint(Sketcher.Constraint("DistanceY", -1, 1, 0, 2, Q("5.88 mm")))
pad18 = doc.addObject("PartDesign::Pad", "Pad017")
body18.addObject(pad18)
pad18.Profile = sketch18
pad18.Length = 10
body19 = doc.addObject("PartDesign::Body", "Body018")

# Sketch on XY plane
sketch19 = doc.addObject("Sketcher::SketchObject", "Sketch018")
body19.addObject(sketch19)
sketch19.AttachmentSupport = (doc.getObject("XY_Plane018"), [""])
sketch19.MapMode = "FlatFace"
sketch19.AttachmentOffset = App.Placement(V(0, 0, -3), App.Rotation())
sketch19.addGeometry(Part.LineSegment(V(3, 9.82, 0), V(3, 8.42, 0)), False)
sketch19.addGeometry(Part.LineSegment(V(3, 8.42, 0), V(4.6, 8.42, 0)), False)
sketch19.addGeometry(Part.LineSegment(V(4.6, 8.42, 0), V(4.6, 9.82, 0)), False)
sketch19.addGeometry(Part.LineSegment(V(4.6, 9.82, 0), V(3, 9.82, 0)), False)
sketch19.addConstraint(Sketcher.Constraint("Coincident", 0, 2, 1, 1))
sketch19.addConstraint(Sketcher.Constraint("Coincident", 1, 2, 2, 1))
sketch19.addConstraint(Sketcher.Constraint("Coincident", 2, 2, 3, 1))
sketch19.addConstraint(Sketcher.Constraint("Coincident", 3, 2, 0, 1))
sketch19.addConstraint(Sketcher.Constraint("Vertical", 0))
sketch19.addConstraint(Sketcher.Constraint("Horizontal", 1))
sketch19.addConstraint(Sketcher.Constraint("Vertical", 2))
sketch19.addConstraint(Sketcher.Constraint("Horizontal", 3))
sketch19.addConstraint(Sketcher.Constraint("DistanceX", 1, 1, 1, 2, Q("1.6 mm")))
sketch19.addConstraint(Sketcher.Constraint("DistanceY", 0, 2, 0, 1, Q("1.4 mm")))
sketch19.addConstraint(Sketcher.Constraint("DistanceX", -1, 1, 0, 2, Q("3 mm")))
sketch19.addConstraint(Sketcher.Constraint("DistanceY", -1, 1, 0, 2, Q("8.42 mm")))
pad19 = doc.addObject("PartDesign::Pad", "Pad018")
body19.addObject(pad19)
pad19.Profile = sketch19
pad19.Length = 10
body20 = doc.addObject("PartDesign::Body", "Body019")

# Sketch on XY plane
sketch20 = doc.addObject("Sketcher::SketchObject", "Sketch019")
body20.addObject(sketch20)
sketch20.AttachmentSupport = (doc.getObject("XY_Plane019"), [""])
sketch20.MapMode = "FlatFace"
sketch20.AttachmentOffset = App.Placement(V(0, 0, -3), App.Rotation())
sketch20.addGeometry(Part.LineSegment(V(3, 12.36, 0), V(3, 10.96, 0)), False)
sketch20.addGeometry(Part.LineSegment(V(3, 10.96, 0), V(4.6, 10.96, 0)), False)
sketch20.addGeometry(Part.LineSegment(V(4.6, 10.96, 0), V(4.6, 12.36, 0)), False)
sketch20.addGeometry(Part.LineSegment(V(4.6, 12.36, 0), V(3, 12.36, 0)), False)
sketch20.addConstraint(Sketcher.Constraint("Coincident", 0, 2, 1, 1))
sketch20.addConstraint(Sketcher.Constraint("Coincident", 1, 2, 2, 1))
sketch20.addConstraint(Sketcher.Constraint("Coincident", 2, 2, 3, 1))
sketch20.addConstraint(Sketcher.Constraint("Coincident", 3, 2, 0, 1))
sketch20.addConstraint(Sketcher.Constraint("Vertical", 0))
sketch20.addConstraint(Sketcher.Constraint("Horizontal", 1))
sketch20.addConstraint(Sketcher.Constraint("Vertical", 2))
sketch20.addConstraint(Sketcher.Constraint("Horizontal", 3))
sketch20.addConstraint(Sketcher.Constraint("DistanceX", 1, 1, 1, 2, Q("1.6 mm")))
sketch20.addConstraint(Sketcher.Constraint("DistanceY", 0, 2, 0, 1, Q("1.4 mm")))
sketch20.addConstraint(Sketcher.Constraint("DistanceX", -1, 1, 0, 2, Q("3 mm")))
sketch20.addConstraint(Sketcher.Constraint("DistanceY", -1, 1, 0, 2, Q("10.96 mm")))
pad20 = doc.addObject("PartDesign::Pad", "Pad019")
body20.addObject(pad20)
pad20.Profile = sketch20
pad20.Length = 10
body21 = doc.addObject("PartDesign::Body", "Body020")

# Sketch on XY plane
sketch21 = doc.addObject("Sketcher::SketchObject", "Sketch020")
body21.addObject(sketch21)
sketch21.AttachmentSupport = (doc.getObject("XY_Plane020"), [""])
sketch21.MapMode = "FlatFace"
sketch21.AttachmentOffset = App.Placement(V(0, 0, -3), App.Rotation())
sketch21.addGeometry(Part.LineSegment(V(3, 14.9, 0), V(3, 13.5, 0)), False)
sketch21.addGeometry(Part.LineSegment(V(3, 13.5, 0), V(4.6, 13.5, 0)), False)
sketch21.addGeometry(Part.LineSegment(V(4.6, 13.5, 0), V(4.6, 14.9, 0)), False)
sketch21.addGeometry(Part.LineSegment(V(4.6, 14.9, 0), V(3, 14.9, 0)), False)
sketch21.addConstraint(Sketcher.Constraint("Coincident", 0, 2, 1, 1))
sketch21.addConstraint(Sketcher.Constraint("Coincident", 1, 2, 2, 1))
sketch21.addConstraint(Sketcher.Constraint("Coincident", 2, 2, 3, 1))
sketch21.addConstraint(Sketcher.Constraint("Coincident", 3, 2, 0, 1))
sketch21.addConstraint(Sketcher.Constraint("Vertical", 0))
sketch21.addConstraint(Sketcher.Constraint("Horizontal", 1))
sketch21.addConstraint(Sketcher.Constraint("Vertical", 2))
sketch21.addConstraint(Sketcher.Constraint("Horizontal", 3))
sketch21.addConstraint(Sketcher.Constraint("DistanceX", 1, 1, 1, 2, Q("1.6 mm")))
sketch21.addConstraint(Sketcher.Constraint("DistanceY", 0, 2, 0, 1, Q("1.4 mm")))
sketch21.addConstraint(Sketcher.Constraint("DistanceX", -1, 1, 0, 2, Q("3 mm")))
sketch21.addConstraint(Sketcher.Constraint("DistanceY", -1, 1, 0, 2, Q("13.5 mm")))
pad21 = doc.addObject("PartDesign::Pad", "Pad020")
body21.addObject(pad21)
pad21.Profile = sketch21
pad21.Length = 10
body22 = doc.addObject("PartDesign::Body", "Body021")

# Sketch on XY plane
sketch22 = doc.addObject("Sketcher::SketchObject", "Sketch021")
body22.addObject(sketch22)
sketch22.AttachmentSupport = (doc.getObject("XY_Plane021"), [""])
sketch22.MapMode = "FlatFace"
sketch22.AttachmentOffset = App.Placement(V(0, 0, -3), App.Rotation())
sketch22.addGeometry(Part.LineSegment(V(3, 17.44, 0), V(3, 16.04, 0)), False)
sketch22.addGeometry(Part.LineSegment(V(3, 16.04, 0), V(4.6, 16.04, 0)), False)
sketch22.addGeometry(Part.LineSegment(V(4.6, 16.04, 0), V(4.6, 17.44, 0)), False)
sketch22.addGeometry(Part.LineSegment(V(4.6, 17.44, 0), V(3, 17.44, 0)), False)
sketch22.addConstraint(Sketcher.Constraint("Coincident", 0, 2, 1, 1))
sketch22.addConstraint(Sketcher.Constraint("Coincident", 1, 2, 2, 1))
sketch22.addConstraint(Sketcher.Constraint("Coincident", 2, 2, 3, 1))
sketch22.addConstraint(Sketcher.Constraint("Coincident", 3, 2, 0, 1))
sketch22.addConstraint(Sketcher.Constraint("Vertical", 0))
sketch22.addConstraint(Sketcher.Constraint("Horizontal", 1))
sketch22.addConstraint(Sketcher.Constraint("Vertical", 2))
sketch22.addConstraint(Sketcher.Constraint("Horizontal", 3))
sketch22.addConstraint(Sketcher.Constraint("DistanceX", 1, 1, 1, 2, Q("1.6 mm")))
sketch22.addConstraint(Sketcher.Constraint("DistanceY", 0, 2, 0, 1, Q("1.4 mm")))
sketch22.addConstraint(Sketcher.Constraint("DistanceX", -1, 1, 0, 2, Q("3 mm")))
sketch22.addConstraint(Sketcher.Constraint("DistanceY", -1, 1, 0, 2, Q("16.04 mm")))
pad22 = doc.addObject("PartDesign::Pad", "Pad021")
body22.addObject(pad22)
pad22.Profile = sketch22
pad22.Length = 10
body23 = doc.addObject("PartDesign::Body", "Body022")

# Sketch on XY plane
sketch23 = doc.addObject("Sketcher::SketchObject", "Sketch022")
body23.addObject(sketch23)
sketch23.AttachmentSupport = (doc.getObject("XY_Plane022"), [""])
sketch23.MapMode = "FlatFace"
sketch23.AttachmentOffset = App.Placement(V(0, 0, -3), App.Rotation())
sketch23.addGeometry(Part.LineSegment(V(3, 19.98, 0), V(3, 18.58, 0)), False)
sketch23.addGeometry(Part.LineSegment(V(3, 18.58, 0), V(4.6, 18.58, 0)), False)
sketch23.addGeometry(Part.LineSegment(V(4.6, 18.58, 0), V(4.6, 19.98, 0)), False)
sketch23.addGeometry(Part.LineSegment(V(4.6, 19.98, 0), V(3, 19.98, 0)), False)
sketch23.addConstraint(Sketcher.Constraint("Coincident", 0, 2, 1, 1))
sketch23.addConstraint(Sketcher.Constraint("Coincident", 1, 2, 2, 1))
sketch23.addConstraint(Sketcher.Constraint("Coincident", 2, 2, 3, 1))
sketch23.addConstraint(Sketcher.Constraint("Coincident", 3, 2, 0, 1))
sketch23.addConstraint(Sketcher.Constraint("Vertical", 0))
sketch23.addConstraint(Sketcher.Constraint("Horizontal", 1))
sketch23.addConstraint(Sketcher.Constraint("Vertical", 2))
sketch23.addConstraint(Sketcher.Constraint("Horizontal", 3))
sketch23.addConstraint(Sketcher.Constraint("DistanceX", 1, 1, 1, 2, Q("1.6 mm")))
sketch23.addConstraint(Sketcher.Constraint("DistanceY", 0, 2, 0, 1, Q("1.4 mm")))
sketch23.addConstraint(Sketcher.Constraint("DistanceX", -1, 1, 0, 2, Q("3 mm")))
sketch23.addConstraint(Sketcher.Constraint("DistanceY", -1, 1, 0, 2, Q("18.58 mm")))
pad23 = doc.addObject("PartDesign::Pad", "Pad022")
body23.addObject(pad23)
pad23.Profile = sketch23
pad23.Length = 10
body24 = doc.addObject("PartDesign::Body", "Body023")
body24.AllowCompound = True

# Sketch on XY plane
sketch24 = doc.addObject("Sketcher::SketchObject", "Sketch023")
body24.addObject(sketch24)
sketch24.AttachmentSupport = (doc.getObject("XY_Plane023"), [""])
sketch24.MapMode = "FlatFace"
sketch24.AttachmentOffset = App.Placement(V(0, 0, -3), App.Rotation())
sketch24.addGeometry(Part.LineSegment(V(3, 2.2, 0), V(3, 0.8, 0)), False)
sketch24.addGeometry(Part.LineSegment(V(3, 0.8, 0), V(4.6, 0.8, 0)), False)
sketch24.addGeometry(Part.LineSegment(V(4.6, 0.8, 0), V(4.6, 2.2, 0)), False)
sketch24.addGeometry(Part.LineSegment(V(4.6, 2.2, 0), V(3, 2.2, 0)), False)
sketch24.addConstraint(Sketcher.Constraint("Coincident", 0, 2, 1, 1))
sketch24.addConstraint(Sketcher.Constraint("Coincident", 1, 2, 2, 1))
sketch24.addConstraint(Sketcher.Constraint("Coincident", 2, 2, 3, 1))
sketch24.addConstraint(Sketcher.Constraint("Coincident", 3, 2, 0, 1))
sketch24.addConstraint(Sketcher.Constraint("Vertical", 0))
sketch24.addConstraint(Sketcher.Constraint("Horizontal", 1))
sketch24.addConstraint(Sketcher.Constraint("Vertical", 2))
sketch24.addConstraint(Sketcher.Constraint("Horizontal", 3))
sketch24.addConstraint(Sketcher.Constraint("DistanceX", 1, 1, 1, 2, Q("1.6 mm")))
sketch24.addConstraint(Sketcher.Constraint("DistanceY", 0, 2, 0, 1, Q("1.4 mm")))
sketch24.addConstraint(Sketcher.Constraint("DistanceX", -1, 1, 0, 2, Q("3 mm")))
sketch24.addConstraint(Sketcher.Constraint("DistanceY", -1, 1, 0, 2, Q("0.8 mm")))
pad24 = doc.addObject("PartDesign::Pad", "Pad023")
body24.addObject(pad24)
pad24.Profile = sketch24
pad24.Length = 10
doc.recompute()

boolean15 = doc.addObject("PartDesign::Boolean", "Boolean014")
body24.addObject(boolean15)
boolean15.Type = "Fuse"
boolean15.addObjects([body17])
doc.recompute()

boolean16 = doc.addObject("PartDesign::Boolean", "Boolean015")
body24.addObject(boolean16)
boolean16.Type = "Fuse"
boolean16.addObjects([body18])
doc.recompute()

boolean17 = doc.addObject("PartDesign::Boolean", "Boolean016")
body24.addObject(boolean17)
boolean17.Type = "Fuse"
boolean17.addObjects([body19])
doc.recompute()

boolean18 = doc.addObject("PartDesign::Boolean", "Boolean017")
body24.addObject(boolean18)
boolean18.Type = "Fuse"
boolean18.addObjects([body20])
doc.recompute()

boolean19 = doc.addObject("PartDesign::Boolean", "Boolean018")
body24.addObject(boolean19)
boolean19.Type = "Fuse"
boolean19.addObjects([body21])
doc.recompute()

boolean20 = doc.addObject("PartDesign::Boolean", "Boolean019")
body24.addObject(boolean20)
boolean20.Type = "Fuse"
boolean20.addObjects([body22])
doc.recompute()

boolean21 = doc.addObject("PartDesign::Boolean", "Boolean020")
body24.addObject(boolean21)
boolean21.Type = "Fuse"
boolean21.addObjects([body23])
body25 = doc.addObject("PartDesign::Body", "Body024")

# Sketch on XY plane
sketch25 = doc.addObject("Sketcher::SketchObject", "Sketch024")
body25.addObject(sketch25)
sketch25.AttachmentSupport = (doc.getObject("XY_Plane024"), [""])
sketch25.MapMode = "FlatFace"
sketch25.addGeometry(Part.LineSegment(V(0, 21, 0), V(0, 0, 0)), False)
sketch25.addGeometry(Part.LineSegment(V(0, 0, 0), V(37, 0, 0)), False)
sketch25.addGeometry(Part.LineSegment(V(37, 0, 0), V(37, 21, 0)), False)
sketch25.addGeometry(Part.LineSegment(V(37, 21, 0), V(0, 21, 0)), False)
sketch25.addConstraint(Sketcher.Constraint("Coincident", 0, 2, 1, 1))
sketch25.addConstraint(Sketcher.Constraint("Coincident", 1, 2, 2, 1))
sketch25.addConstraint(Sketcher.Constraint("Coincident", 2, 2, 3, 1))
sketch25.addConstraint(Sketcher.Constraint("Coincident", 3, 2, 0, 1))
sketch25.addConstraint(Sketcher.Constraint("Vertical", 0))
sketch25.addConstraint(Sketcher.Constraint("Horizontal", 1))
sketch25.addConstraint(Sketcher.Constraint("Vertical", 2))
sketch25.addConstraint(Sketcher.Constraint("Horizontal", 3))
sketch25.addConstraint(Sketcher.Constraint("Coincident", 0, 2, -1, 1))
sketch25.addConstraint(Sketcher.Constraint("DistanceX", 1, 1, 1, 2, Q("37 mm")))
sketch25.addConstraint(Sketcher.Constraint("DistanceY", 0, 2, 0, 1, Q("21 mm")))
pad25 = doc.addObject("PartDesign::Pad", "Pad024")
body25.addObject(pad25)
pad25.Profile = sketch25
pad25.Length = 5.5
doc.recompute()

boolean22 = doc.addObject("PartDesign::Boolean", "Boolean021")
body25.addObject(boolean22)
boolean22.Type = "Cut"
boolean22.addObjects([body24])
doc.recompute()

boolean23 = doc.addObject("PartDesign::Boolean", "Boolean022")
body25.addObject(boolean23)
boolean23.Type = "Cut"
boolean23.addObjects([body16])

doc.recompute()
